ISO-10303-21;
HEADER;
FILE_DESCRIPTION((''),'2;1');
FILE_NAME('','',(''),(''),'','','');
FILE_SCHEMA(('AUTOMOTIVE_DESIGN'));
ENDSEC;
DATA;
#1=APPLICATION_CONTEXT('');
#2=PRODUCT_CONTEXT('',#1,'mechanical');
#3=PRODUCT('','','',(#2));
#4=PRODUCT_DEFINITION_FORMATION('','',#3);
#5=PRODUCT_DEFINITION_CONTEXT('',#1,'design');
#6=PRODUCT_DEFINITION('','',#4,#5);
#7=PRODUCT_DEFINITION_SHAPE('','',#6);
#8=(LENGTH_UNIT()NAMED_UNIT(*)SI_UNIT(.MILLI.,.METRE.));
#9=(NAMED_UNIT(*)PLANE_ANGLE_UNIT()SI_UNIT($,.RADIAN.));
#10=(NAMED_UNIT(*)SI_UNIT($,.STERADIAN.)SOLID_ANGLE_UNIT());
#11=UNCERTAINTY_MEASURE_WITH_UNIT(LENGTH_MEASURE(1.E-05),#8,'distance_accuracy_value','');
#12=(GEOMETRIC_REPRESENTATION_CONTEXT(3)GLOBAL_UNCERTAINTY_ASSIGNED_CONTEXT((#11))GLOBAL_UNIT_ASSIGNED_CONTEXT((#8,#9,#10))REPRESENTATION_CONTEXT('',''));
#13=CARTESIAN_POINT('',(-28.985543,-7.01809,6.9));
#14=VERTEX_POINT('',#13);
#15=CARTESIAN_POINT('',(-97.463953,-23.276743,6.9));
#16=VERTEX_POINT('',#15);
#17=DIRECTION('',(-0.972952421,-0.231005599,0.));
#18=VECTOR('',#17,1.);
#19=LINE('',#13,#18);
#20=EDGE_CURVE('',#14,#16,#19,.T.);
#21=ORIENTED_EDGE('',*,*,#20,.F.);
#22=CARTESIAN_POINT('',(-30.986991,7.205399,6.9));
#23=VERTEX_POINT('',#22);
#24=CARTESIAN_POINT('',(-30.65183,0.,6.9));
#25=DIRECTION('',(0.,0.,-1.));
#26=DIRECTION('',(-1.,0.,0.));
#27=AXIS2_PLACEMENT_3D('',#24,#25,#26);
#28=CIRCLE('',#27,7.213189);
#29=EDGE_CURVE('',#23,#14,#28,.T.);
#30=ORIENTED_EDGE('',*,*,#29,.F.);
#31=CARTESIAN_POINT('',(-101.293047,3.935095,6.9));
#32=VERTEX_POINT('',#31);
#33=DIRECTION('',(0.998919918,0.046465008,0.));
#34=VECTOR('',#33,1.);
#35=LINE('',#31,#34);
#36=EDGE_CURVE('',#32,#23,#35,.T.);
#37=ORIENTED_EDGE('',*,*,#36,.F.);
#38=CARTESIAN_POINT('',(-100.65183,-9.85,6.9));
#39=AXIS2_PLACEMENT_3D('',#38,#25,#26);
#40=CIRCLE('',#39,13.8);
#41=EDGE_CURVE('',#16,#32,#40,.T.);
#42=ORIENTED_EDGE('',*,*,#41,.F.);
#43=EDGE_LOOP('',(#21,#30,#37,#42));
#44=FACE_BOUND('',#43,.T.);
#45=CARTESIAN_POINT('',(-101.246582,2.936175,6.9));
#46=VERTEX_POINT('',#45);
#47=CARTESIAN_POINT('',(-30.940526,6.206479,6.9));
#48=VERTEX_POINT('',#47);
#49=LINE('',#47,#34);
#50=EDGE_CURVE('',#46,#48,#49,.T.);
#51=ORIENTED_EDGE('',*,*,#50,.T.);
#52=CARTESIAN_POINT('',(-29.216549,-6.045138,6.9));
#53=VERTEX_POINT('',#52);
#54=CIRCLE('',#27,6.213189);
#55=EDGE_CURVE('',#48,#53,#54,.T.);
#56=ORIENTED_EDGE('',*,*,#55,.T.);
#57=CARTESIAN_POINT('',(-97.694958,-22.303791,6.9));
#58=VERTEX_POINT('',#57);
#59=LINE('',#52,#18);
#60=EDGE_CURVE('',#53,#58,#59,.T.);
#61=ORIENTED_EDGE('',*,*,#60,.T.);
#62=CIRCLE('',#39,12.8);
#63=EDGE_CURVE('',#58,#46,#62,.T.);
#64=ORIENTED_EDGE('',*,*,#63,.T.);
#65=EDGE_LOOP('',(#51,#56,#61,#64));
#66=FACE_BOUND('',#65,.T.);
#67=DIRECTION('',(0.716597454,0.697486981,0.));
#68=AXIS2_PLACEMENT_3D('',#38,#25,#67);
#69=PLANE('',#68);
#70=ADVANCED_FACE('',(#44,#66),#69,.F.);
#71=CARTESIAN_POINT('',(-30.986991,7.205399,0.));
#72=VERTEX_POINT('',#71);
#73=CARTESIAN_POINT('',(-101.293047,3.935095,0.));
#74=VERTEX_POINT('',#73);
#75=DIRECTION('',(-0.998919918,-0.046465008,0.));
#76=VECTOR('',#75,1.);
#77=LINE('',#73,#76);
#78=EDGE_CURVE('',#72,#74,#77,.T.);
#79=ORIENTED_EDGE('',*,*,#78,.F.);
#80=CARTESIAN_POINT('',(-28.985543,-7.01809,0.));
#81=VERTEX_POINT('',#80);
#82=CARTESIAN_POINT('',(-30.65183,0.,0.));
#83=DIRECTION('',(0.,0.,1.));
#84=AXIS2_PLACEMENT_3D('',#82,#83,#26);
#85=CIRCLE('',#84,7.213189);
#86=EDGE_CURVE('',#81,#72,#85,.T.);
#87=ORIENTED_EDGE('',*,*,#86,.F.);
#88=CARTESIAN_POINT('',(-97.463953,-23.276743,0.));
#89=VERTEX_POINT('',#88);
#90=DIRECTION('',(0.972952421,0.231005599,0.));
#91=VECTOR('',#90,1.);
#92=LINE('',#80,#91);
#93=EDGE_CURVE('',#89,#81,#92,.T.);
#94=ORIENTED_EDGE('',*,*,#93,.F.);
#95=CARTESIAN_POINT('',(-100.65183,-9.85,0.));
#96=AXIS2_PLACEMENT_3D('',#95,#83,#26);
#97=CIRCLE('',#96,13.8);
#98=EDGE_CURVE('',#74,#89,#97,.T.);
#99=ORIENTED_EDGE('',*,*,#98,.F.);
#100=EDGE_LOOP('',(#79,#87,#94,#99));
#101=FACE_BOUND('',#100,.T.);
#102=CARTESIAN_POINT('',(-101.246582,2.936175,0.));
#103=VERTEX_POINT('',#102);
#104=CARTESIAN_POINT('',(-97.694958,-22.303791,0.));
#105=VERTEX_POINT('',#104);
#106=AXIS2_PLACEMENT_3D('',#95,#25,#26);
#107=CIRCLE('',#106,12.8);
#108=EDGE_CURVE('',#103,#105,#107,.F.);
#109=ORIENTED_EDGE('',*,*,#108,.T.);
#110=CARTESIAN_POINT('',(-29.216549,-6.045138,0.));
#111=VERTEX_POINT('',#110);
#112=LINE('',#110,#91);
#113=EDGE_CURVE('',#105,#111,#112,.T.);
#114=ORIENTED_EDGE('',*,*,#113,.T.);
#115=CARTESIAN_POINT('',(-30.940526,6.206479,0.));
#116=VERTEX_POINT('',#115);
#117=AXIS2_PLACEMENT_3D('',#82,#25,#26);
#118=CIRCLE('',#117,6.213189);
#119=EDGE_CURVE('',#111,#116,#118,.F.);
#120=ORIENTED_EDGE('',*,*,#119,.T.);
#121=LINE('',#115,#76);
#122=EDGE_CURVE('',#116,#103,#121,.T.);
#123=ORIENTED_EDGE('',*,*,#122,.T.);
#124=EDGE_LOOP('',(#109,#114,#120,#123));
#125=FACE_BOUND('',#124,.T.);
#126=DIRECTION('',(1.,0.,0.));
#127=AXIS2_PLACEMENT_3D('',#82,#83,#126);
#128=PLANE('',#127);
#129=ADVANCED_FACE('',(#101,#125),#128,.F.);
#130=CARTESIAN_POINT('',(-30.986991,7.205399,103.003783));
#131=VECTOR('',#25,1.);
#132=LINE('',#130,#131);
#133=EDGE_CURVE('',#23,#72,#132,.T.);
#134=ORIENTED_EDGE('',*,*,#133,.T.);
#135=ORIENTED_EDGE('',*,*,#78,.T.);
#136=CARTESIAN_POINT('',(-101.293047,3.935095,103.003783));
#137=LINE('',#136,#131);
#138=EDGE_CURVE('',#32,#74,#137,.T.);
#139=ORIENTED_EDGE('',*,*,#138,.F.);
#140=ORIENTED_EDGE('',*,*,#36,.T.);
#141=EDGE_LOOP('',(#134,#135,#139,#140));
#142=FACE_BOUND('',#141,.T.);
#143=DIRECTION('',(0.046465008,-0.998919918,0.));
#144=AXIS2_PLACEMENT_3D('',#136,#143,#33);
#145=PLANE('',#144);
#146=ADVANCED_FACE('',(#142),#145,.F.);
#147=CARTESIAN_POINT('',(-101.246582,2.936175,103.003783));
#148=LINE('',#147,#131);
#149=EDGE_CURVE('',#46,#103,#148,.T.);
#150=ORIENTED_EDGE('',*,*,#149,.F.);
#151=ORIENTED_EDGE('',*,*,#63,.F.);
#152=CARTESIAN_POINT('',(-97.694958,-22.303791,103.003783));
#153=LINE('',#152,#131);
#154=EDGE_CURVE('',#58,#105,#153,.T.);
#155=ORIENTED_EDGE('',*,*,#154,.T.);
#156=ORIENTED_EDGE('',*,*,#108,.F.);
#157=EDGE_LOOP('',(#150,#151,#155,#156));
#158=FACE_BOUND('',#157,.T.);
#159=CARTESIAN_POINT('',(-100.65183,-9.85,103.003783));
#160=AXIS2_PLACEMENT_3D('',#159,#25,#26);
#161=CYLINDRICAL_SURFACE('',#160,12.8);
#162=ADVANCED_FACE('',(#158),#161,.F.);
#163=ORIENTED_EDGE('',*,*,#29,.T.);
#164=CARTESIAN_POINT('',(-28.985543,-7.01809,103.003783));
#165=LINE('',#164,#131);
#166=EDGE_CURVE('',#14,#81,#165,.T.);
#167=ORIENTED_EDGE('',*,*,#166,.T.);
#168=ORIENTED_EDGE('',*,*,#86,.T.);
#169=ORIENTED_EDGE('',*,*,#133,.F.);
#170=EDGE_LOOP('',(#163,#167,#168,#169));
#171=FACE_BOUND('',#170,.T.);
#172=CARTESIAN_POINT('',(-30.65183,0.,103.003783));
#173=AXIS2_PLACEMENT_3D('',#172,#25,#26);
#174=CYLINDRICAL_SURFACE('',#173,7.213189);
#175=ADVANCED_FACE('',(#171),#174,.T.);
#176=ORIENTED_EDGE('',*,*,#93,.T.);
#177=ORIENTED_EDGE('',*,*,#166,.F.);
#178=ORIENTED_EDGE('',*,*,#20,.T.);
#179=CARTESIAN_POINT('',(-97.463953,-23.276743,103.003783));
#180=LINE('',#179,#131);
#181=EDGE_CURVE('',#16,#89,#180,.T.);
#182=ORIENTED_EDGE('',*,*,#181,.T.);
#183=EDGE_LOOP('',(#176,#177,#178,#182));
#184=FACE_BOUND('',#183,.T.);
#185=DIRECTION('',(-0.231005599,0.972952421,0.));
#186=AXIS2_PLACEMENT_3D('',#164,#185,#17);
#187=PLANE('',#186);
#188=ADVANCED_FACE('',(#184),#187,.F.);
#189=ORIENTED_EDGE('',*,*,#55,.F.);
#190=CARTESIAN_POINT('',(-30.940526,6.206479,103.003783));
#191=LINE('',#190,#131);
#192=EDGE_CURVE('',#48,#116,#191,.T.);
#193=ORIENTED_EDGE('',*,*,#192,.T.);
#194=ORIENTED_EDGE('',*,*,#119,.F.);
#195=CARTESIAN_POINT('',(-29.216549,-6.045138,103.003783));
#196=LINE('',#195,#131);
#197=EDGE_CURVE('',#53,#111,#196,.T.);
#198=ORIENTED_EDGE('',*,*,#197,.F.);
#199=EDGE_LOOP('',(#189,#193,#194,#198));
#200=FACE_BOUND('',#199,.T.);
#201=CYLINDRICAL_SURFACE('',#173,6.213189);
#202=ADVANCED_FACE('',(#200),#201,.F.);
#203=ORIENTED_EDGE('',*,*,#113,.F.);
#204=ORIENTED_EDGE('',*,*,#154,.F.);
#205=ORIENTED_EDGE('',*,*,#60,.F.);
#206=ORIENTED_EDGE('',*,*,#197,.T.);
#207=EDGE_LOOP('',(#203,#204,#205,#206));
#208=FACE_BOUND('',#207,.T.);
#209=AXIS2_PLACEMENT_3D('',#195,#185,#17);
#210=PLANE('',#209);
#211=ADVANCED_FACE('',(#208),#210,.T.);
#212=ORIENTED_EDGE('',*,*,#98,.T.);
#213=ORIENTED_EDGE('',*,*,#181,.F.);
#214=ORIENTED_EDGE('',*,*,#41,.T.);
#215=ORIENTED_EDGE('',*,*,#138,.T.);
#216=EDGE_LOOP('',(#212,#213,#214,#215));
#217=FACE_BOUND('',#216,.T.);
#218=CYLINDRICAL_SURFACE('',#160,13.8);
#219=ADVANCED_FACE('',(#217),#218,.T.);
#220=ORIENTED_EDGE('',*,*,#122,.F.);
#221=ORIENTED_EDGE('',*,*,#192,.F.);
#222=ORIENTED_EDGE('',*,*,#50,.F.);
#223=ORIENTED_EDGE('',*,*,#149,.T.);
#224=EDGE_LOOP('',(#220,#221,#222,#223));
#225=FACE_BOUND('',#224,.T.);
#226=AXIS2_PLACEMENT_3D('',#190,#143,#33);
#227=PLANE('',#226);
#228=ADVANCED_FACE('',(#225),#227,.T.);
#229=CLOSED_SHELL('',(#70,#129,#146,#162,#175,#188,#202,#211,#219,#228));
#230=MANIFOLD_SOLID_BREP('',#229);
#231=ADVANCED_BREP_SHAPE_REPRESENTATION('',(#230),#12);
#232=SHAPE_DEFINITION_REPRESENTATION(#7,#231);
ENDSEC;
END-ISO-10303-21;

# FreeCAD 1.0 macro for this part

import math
import FreeCAD as App
import Part
import Sketcher

doc = App.newDocument("Part")
params = doc.addObject("Spreadsheet::Sheet", "Params")
for row, (alias, value) in enumerate([
    ("sketch1_radius", "13.8 mm"),
    ("sketch1_radius2", "12.8 mm"),
    ("pad1_length", "6.9 mm"),
], start=1):
    params.set(f"A{row}", alias)
    params.set(f"B{row}", "=" + value)
    params.setAlias(f"B{row}", alias)

body = doc.addObject("PartDesign::Body", "Body")

# Sketch on XY plane
sketch1 = doc.addObject("Sketcher::SketchObject", "Sketch")
body.addObject(sketch1)
sketch1.AttachmentSupport = (doc.XY_Plane, [""])
sketch1.MapMode = "FlatFace"
sketch1.addGeometry([
    Part.LineSegment(App.Vector(-31, 7, 0), App.Vector(-101, 4, 0)),  # 0
    Part.ArcOfCircle(Part.Circle(App.Vector(-101, -10, 0), App.Vector(0, 0, 1), 14), math.radians(93), math.radians(283)),  # 1
    Part.LineSegment(App.Vector(-97, -23, 0), App.Vector(-29, -7, 0)),  # 2
    Part.ArcOfCircle(Part.Circle(App.Vector(-31, 0, 0), App.Vector(0, 0, 1), 7), math.radians(-77), math.radians(93)),  # 3
    Part.LineSegment(App.Vector(-101, 3, 0), App.Vector(-31, 6, 0)),  # 4
    Part.ArcOfCircle(Part.Circle(App.Vector(-31, 0, 0), App.Vector(0, 0, 1), 6), math.radians(-77), math.radians(93)),  # 5
    Part.LineSegment(App.Vector(-29, -6, 0), App.Vector(-98, -22, 0)),  # 6
    Part.ArcOfCircle(Part.Circle(App.Vector(-101, -10, 0), App.Vector(0, 0, 1), 13), math.radians(93), math.radians(283)),  # 7
], False)
sketch1.addConstraint([
    Sketcher.Constraint("Tangent", 0, 2, 1, 1),
    Sketcher.Constraint("Tangent", 1, 2, 2, 1),
    Sketcher.Constraint("Tangent", 2, 2, 3, 1),
    Sketcher.Constraint("Tangent", 3, 2, 0, 1),
    Sketcher.Constraint("Tangent", 4, 2, 5, 2),
    Sketcher.Constraint("Tangent", 5, 1, 6, 1),
    Sketcher.Constraint("Tangent", 6, 2, 7, 2),
    Sketcher.Constraint("Tangent", 7, 1, 4, 1),
    Sketcher.Constraint("Coincident", 5, 3, 3, 3),
    Sketcher.Constraint("Coincident", 7, 3, 1, 3),
    Sketcher.Constraint("PointOnObject", 3, 3, -1),
    Sketcher.Constraint("Parallel", 0, 4),
    Sketcher.Constraint("Radius", 1, 13.8),
    Sketcher.Constraint("Radius", 7, 12.8),
    Sketcher.Constraint("DistanceX", 1, 3, 3, 3, 70.0),
    Sketcher.Constraint("DistanceY", 1, 3, -1, 1, 9.85),
    Sketcher.Constraint("Radius", 3, 7.213189),
    Sketcher.Constraint("DistanceX", 1, 3, -1, 1, 100.65183),
])
sketch1.setExpression("Constraints[12]", "Params.sketch1_radius")
sketch1.setExpression("Constraints[13]", "Params.sketch1_radius2")
pad1 = doc.addObject("PartDesign::Pad", "Pad")
body.addObject(pad1)
pad1.Profile = sketch1
pad1.setExpression("Length", "Params.pad1_length")

doc.recompute()
